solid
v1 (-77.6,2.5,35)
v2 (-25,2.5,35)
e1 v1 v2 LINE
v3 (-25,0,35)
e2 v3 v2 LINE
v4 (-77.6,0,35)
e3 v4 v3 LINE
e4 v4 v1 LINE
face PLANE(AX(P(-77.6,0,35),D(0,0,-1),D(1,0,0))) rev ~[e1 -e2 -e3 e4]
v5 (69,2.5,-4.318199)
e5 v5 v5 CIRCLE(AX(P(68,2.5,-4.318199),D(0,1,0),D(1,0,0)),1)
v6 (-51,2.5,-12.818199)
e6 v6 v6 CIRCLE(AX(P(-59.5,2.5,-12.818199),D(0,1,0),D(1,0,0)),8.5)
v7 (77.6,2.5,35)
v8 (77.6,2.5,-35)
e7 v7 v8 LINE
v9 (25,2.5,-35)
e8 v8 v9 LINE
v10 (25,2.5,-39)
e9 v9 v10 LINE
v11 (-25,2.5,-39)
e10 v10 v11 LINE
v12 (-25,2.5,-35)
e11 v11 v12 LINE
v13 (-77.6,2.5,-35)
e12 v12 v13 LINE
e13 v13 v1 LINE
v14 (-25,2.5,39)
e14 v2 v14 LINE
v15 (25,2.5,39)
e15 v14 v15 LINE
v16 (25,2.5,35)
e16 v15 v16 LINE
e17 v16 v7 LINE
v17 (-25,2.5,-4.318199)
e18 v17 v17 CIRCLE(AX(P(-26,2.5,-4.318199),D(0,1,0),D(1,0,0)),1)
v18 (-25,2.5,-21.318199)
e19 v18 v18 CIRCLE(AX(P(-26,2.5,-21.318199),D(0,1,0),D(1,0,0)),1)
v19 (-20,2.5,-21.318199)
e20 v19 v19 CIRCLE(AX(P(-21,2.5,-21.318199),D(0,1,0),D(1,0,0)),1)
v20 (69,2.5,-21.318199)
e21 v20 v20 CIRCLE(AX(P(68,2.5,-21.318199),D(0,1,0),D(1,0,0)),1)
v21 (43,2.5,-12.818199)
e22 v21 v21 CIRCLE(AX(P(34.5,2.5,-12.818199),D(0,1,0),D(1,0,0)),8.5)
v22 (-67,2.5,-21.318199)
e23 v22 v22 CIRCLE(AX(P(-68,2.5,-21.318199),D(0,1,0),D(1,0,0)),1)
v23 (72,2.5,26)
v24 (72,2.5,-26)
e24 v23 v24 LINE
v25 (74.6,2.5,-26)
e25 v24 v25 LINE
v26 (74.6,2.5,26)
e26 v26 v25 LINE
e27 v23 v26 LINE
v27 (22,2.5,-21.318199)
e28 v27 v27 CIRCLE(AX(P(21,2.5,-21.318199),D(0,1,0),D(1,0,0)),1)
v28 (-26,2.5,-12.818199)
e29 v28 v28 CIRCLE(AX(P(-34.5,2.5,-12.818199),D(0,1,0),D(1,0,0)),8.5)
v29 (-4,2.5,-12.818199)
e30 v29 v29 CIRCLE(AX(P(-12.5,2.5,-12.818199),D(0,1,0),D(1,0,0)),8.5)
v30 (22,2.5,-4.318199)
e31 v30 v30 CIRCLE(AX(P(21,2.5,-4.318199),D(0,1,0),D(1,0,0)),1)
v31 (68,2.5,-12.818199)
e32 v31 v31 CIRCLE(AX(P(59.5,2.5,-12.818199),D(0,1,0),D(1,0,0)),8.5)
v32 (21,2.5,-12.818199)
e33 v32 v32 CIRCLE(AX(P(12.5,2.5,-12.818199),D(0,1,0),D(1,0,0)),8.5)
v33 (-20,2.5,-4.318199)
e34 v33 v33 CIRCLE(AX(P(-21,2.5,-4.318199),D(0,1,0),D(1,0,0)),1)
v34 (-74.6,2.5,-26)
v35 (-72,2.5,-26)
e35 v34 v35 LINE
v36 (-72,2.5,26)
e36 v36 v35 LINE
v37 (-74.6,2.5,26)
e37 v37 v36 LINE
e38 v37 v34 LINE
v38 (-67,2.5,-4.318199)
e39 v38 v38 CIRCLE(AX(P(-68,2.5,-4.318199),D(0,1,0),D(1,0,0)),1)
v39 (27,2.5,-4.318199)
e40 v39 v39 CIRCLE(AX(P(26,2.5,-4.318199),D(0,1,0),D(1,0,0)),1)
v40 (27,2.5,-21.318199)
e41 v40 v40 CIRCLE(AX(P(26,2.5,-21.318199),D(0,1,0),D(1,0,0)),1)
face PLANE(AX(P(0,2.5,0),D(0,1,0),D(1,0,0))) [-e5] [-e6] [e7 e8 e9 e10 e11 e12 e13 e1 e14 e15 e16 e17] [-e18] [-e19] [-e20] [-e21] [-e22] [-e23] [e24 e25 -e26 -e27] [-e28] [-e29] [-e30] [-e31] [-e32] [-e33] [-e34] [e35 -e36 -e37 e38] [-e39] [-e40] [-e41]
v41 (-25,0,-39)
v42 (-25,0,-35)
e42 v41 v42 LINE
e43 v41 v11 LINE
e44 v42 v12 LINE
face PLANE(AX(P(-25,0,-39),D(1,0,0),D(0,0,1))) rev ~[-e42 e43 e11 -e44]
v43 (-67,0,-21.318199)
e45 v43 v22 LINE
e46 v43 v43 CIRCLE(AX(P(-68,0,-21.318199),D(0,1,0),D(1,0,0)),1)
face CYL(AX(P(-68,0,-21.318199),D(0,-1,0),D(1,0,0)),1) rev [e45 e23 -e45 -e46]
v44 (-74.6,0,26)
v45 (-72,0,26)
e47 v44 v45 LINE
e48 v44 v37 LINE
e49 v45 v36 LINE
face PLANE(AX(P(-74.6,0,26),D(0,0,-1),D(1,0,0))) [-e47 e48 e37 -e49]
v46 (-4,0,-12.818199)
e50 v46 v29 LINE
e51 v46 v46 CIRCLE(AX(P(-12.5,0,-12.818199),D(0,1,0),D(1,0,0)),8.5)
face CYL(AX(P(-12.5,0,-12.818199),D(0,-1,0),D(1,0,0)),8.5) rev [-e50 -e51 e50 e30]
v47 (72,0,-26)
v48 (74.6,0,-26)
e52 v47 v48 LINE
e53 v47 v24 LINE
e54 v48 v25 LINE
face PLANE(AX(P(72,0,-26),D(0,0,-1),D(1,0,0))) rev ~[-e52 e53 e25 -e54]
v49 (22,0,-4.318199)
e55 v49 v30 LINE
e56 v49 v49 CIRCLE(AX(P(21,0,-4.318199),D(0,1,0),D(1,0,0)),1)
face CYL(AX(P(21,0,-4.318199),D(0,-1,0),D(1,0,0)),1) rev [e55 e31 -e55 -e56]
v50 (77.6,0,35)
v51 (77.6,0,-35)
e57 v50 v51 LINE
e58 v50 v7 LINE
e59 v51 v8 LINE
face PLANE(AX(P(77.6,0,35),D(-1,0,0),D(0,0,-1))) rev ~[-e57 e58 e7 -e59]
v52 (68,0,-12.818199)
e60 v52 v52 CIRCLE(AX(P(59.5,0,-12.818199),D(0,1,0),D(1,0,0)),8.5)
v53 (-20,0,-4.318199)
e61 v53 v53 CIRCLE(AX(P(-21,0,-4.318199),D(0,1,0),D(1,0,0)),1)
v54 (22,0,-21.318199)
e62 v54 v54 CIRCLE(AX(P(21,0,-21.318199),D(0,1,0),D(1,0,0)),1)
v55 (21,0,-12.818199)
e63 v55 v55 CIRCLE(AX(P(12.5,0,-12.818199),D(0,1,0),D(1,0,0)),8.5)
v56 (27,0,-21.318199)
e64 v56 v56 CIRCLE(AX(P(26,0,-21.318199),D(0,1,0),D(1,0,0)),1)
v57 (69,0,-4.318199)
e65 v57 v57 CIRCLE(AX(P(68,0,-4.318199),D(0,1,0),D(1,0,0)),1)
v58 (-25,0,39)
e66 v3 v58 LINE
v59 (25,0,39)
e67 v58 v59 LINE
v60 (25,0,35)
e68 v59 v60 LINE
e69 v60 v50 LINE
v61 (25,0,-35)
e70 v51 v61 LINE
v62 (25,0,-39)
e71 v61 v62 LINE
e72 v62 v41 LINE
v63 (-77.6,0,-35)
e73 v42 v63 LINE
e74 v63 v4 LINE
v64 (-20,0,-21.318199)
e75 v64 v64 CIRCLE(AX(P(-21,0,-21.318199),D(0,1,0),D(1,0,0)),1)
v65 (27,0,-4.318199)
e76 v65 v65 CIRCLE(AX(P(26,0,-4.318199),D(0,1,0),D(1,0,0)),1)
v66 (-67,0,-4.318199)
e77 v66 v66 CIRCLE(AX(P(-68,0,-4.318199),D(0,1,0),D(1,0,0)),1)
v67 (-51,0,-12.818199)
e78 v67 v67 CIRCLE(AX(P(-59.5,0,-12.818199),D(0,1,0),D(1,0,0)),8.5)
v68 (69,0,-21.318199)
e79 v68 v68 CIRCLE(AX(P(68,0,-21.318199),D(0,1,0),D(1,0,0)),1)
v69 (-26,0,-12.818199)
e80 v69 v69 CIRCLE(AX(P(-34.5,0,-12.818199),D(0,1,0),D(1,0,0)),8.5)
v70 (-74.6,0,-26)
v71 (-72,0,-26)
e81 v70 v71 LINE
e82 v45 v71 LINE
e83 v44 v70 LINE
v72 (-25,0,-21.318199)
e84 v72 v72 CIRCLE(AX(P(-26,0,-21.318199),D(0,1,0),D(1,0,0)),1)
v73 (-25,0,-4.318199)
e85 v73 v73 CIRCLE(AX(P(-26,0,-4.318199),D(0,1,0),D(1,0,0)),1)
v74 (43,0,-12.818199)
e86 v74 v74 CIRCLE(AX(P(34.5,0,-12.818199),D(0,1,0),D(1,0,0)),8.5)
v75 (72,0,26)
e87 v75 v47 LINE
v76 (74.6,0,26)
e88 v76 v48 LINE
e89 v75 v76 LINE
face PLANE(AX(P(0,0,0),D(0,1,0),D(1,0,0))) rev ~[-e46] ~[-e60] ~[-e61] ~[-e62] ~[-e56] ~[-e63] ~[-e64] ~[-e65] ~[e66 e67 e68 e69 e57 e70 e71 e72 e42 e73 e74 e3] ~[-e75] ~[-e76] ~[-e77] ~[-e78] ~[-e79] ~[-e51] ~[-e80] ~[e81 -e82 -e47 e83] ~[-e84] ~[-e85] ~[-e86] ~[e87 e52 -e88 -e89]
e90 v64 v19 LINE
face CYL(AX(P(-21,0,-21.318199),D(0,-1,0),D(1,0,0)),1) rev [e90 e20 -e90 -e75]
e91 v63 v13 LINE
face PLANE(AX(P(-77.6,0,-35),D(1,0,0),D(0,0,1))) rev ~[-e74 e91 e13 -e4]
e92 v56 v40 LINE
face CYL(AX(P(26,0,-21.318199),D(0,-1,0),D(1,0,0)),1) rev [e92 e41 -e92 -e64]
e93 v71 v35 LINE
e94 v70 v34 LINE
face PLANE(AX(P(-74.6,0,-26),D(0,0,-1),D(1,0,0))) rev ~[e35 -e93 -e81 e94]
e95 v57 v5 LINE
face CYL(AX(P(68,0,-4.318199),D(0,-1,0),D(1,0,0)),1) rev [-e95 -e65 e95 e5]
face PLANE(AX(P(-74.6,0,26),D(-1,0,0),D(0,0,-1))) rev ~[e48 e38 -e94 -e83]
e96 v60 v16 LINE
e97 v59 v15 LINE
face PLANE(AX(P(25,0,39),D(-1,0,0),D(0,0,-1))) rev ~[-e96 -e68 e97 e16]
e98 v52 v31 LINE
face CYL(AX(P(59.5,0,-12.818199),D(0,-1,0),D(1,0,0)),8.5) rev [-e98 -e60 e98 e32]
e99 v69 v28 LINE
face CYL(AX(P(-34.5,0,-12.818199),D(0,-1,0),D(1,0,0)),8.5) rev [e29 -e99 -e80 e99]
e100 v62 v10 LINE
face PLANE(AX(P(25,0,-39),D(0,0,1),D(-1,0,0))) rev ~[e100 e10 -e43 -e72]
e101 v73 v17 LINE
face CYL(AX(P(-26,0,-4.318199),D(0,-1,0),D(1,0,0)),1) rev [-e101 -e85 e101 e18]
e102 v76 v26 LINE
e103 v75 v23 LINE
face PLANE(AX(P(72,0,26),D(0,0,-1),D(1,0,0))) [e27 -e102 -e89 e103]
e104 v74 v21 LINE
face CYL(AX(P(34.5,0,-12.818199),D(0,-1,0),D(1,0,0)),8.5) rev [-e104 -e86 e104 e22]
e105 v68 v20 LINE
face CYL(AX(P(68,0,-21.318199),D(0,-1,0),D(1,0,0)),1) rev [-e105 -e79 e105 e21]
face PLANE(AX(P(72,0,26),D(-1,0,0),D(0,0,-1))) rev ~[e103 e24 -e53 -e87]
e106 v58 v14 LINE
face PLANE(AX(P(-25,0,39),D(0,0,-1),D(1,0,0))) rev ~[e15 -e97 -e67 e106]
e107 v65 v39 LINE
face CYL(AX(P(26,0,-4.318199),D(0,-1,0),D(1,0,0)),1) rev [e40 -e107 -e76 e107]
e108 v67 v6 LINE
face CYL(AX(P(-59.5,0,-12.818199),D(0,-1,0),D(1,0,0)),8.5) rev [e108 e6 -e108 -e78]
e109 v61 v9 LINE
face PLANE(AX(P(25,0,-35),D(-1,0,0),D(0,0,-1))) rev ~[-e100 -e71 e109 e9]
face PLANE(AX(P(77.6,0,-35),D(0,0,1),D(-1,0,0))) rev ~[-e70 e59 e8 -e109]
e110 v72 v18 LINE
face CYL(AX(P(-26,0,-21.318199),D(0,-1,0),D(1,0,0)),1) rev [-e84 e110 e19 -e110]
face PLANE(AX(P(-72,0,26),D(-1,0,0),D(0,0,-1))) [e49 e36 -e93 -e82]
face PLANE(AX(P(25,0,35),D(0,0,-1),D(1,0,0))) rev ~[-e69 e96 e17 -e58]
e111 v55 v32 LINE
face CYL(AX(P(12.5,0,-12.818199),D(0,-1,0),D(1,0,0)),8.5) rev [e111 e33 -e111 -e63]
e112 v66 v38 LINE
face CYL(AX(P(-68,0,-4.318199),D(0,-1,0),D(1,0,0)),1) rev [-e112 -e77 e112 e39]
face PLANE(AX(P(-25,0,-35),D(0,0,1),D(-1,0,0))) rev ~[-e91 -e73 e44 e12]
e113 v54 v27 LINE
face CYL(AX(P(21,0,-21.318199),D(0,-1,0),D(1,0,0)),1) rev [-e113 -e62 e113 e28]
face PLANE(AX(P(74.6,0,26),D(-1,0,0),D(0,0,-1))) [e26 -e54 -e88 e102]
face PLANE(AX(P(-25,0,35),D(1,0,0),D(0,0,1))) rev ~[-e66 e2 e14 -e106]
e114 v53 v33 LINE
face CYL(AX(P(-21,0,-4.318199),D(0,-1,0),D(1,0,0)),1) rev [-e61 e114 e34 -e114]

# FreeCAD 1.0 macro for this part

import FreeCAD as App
import Part
import Sketcher
Q = App.Units.Quantity


def add_polygon(sketch, points):
    """Adds a closed chain of lines whose ends are joined by coincident constraints."""
    first, n = sketch.GeometryCount, len(points)
    for a, b in zip(points, points[1:] + points[:1]):
        sketch.addGeometry(Part.LineSegment(App.Vector(*a, 0), App.Vector(*b, 0)), False)
    for i in range(n):
        sketch.addConstraint(Sketcher.Constraint("Coincident", first + i, 2, first + (i + 1) % n, 1))

doc = App.newDocument("Part")
body = doc.addObject("PartDesign::Body", "Body")

# Sketch on XZ plane
sketch1 = body.newObject("Sketcher::SketchObject", "Sketch")
sketch1.AttachmentSupport = (doc.getObject("XZ_Plane"), [""])
sketch1.MapMode = "FlatFace"
add_polygon(sketch1, [(-25, -35), (-77.6, -35), (-77.6, 35), (-25, 35), (-25, 39), (25, 39), (25, 35), (77.6, 35), (77.6, -35), (25, -35), (25, -39), (-25, -39)])  # lines 0-11
add_polygon(sketch1, [(-72, 26), (-74.6, 26), (-74.6, -26), (-72, -26)])  # lines 12-15
sketch1.addGeometry(Part.Circle(App.Vector(-68, -4.3, 0), App.Vector(0, 0, 1), 1), False)  # 16
sketch1.addGeometry(Part.Circle(App.Vector(-59.5, -12.8, 0), App.Vector(0, 0, 1), 8.5), False)  # 17
sketch1.addGeometry(Part.Circle(App.Vector(-26, -4.3, 0), App.Vector(0, 0, 1), 1), False)  # 18
sketch1.addGeometry(Part.Circle(App.Vector(-21, -4.3, 0), App.Vector(0, 0, 1), 1), False)  # 19
sketch1.addGeometry(Part.Circle(App.Vector(-34.5, -12.8, 0), App.Vector(0, 0, 1), 8.5), False)  # 20
sketch1.addGeometry(Part.Circle(App.Vector(-12.5, -12.8, 0), App.Vector(0, 0, 1), 8.5), False)  # 21
sketch1.addGeometry(Part.Circle(App.Vector(-68, -21.3, 0), App.Vector(0, 0, 1), 1), False)  # 22
sketch1.addGeometry(Part.Circle(App.Vector(-26, -21.3, 0), App.Vector(0, 0, 1), 1), False)  # 23
sketch1.addGeometry(Part.Circle(App.Vector(-21, -21.3, 0), App.Vector(0, 0, 1), 1), False)  # 24
sketch1.addGeometry(Part.Circle(App.Vector(21, -4.3, 0), App.Vector(0, 0, 1), 1), False)  # 25
sketch1.addGeometry(Part.Circle(App.Vector(26, -4.3, 0), App.Vector(0, 0, 1), 1), False)  # 26
sketch1.addGeometry(Part.Circle(App.Vector(12.5, -12.8, 0), App.Vector(0, 0, 1), 8.5), False)  # 27
sketch1.addGeometry(Part.Circle(App.Vector(34.5, -12.8, 0), App.Vector(0, 0, 1), 8.5), False)  # 28
add_polygon(sketch1, [(74.6, 26), (72, 26), (72, -26), (74.6, -26)])  # lines 29-32
sketch1.addGeometry(Part.Circle(App.Vector(68, -4.3, 0), App.Vector(0, 0, 1), 1), False)  # 33
sketch1.addGeometry(Part.Circle(App.Vector(59.5, -12.8, 0), App.Vector(0, 0, 1), 8.5), False)  # 34
sketch1.addGeometry(Part.Circle(App.Vector(21, -21.3, 0), App.Vector(0, 0, 1), 1), False)  # 35
sketch1.addGeometry(Part.Circle(App.Vector(26, -21.3, 0), App.Vector(0, 0, 1), 1), False)  # 36
sketch1.addGeometry(Part.Circle(App.Vector(68, -21.3, 0), App.Vector(0, 0, 1), 1), False)  # 37
sketch1.addConstraint(Sketcher.Constraint("Horizontal", 0))
sketch1.addConstraint(Sketcher.Constraint("Vertical", 1))
sketch1.addConstraint(Sketcher.Constraint("Horizontal", 2))
sketch1.addConstraint(Sketcher.Constraint("Vertical", 3))
sketch1.addConstraint(Sketcher.Constraint("Horizontal", 4))
sketch1.addConstraint(Sketcher.Constraint("Vertical", 5))
sketch1.addConstraint(Sketcher.Constraint("Horizontal", 6))
sketch1.addConstraint(Sketcher.Constraint("Vertical", 7))
sketch1.addConstraint(Sketcher.Constraint("Horizontal", 8))
sketch1.addConstraint(Sketcher.Constraint("Vertical", 9))
sketch1.addConstraint(Sketcher.Constraint("Horizontal", 10))
sketch1.addConstraint(Sketcher.Constraint("Vertical", 11))
sketch1.addConstraint(Sketcher.Constraint("Horizontal", 12))
sketch1.addConstraint(Sketcher.Constraint("Vertical", 13))
sketch1.addConstraint(Sketcher.Constraint("Horizontal", 14))
sketch1.addConstraint(Sketcher.Constraint("Vertical", 15))
sketch1.addConstraint(Sketcher.Constraint("Horizontal", 29))
sketch1.addConstraint(Sketcher.Constraint("Vertical", 30))
sketch1.addConstraint(Sketcher.Constraint("Horizontal", 31))
sketch1.addConstraint(Sketcher.Constraint("Vertical", 32))
sketch1.addConstraint(Sketcher.Constraint("Equal", 16, 18))
sketch1.addConstraint(Sketcher.Constraint("Equal", 18, 19))
sketch1.addConstraint(Sketcher.Constraint("Equal", 17, 20))
sketch1.addConstraint(Sketcher.Constraint("Equal", 20, 21))
sketch1.addConstraint(Sketcher.Constraint("Equal", 19, 22))
sketch1.addConstraint(Sketcher.Constraint("Equal", 22, 23))
sketch1.addConstraint(Sketcher.Constraint("Equal", 23, 24))
sketch1.addConstraint(Sketcher.Constraint("Equal", 24, 25))
sketch1.addConstraint(Sketcher.Constraint("Equal", 25, 26))
sketch1.addConstraint(Sketcher.Constraint("Equal", 21, 27))
sketch1.addConstraint(Sketcher.Constraint("Equal", 27, 28))
sketch1.addConstraint(Sketcher.Constraint("Equal", 26, 33))
sketch1.addConstraint(Sketcher.Constraint("Equal", 28, 34))
sketch1.addConstraint(Sketcher.Constraint("Equal", 33, 35))
sketch1.addConstraint(Sketcher.Constraint("Equal", 35, 36))
sketch1.addConstraint(Sketcher.Constraint("Equal", 36, 37))
sketch1.addConstraint(Sketcher.Constraint("Symmetric", 0, 2, 6, 2, -1, 1))
sketch1.addConstraint(Sketcher.Constraint("Symmetric", 2, 2, 8, 2, -1, 1))
sketch1.addConstraint(Sketcher.Constraint("Symmetric", 4, 2, 10, 2, -1, 1))
sketch1.addConstraint(Sketcher.Constraint("Symmetric", 14, 2, 29, 2, -1, 1))
sketch1.addConstraint(Sketcher.Constraint("Symmetric", 12, 2, 31, 2, -1, 1))
sketch1.addConstraint(Sketcher.Constraint("Symmetric", 19, 3, 25, 3, -2))
sketch1.addConstraint(Sketcher.Constraint("Symmetric", 18, 3, 26, 3, -2))
sketch1.addConstraint(Sketcher.Constraint("Symmetric", 21, 3, 27, 3, -2))
sketch1.addConstraint(Sketcher.Constraint("Symmetric", 20, 3, 28, 3, -2))
sketch1.addConstraint(Sketcher.Constraint("Symmetric", 16, 3, 33, 3, -2))
sketch1.addConstraint(Sketcher.Constraint("Symmetric", 17, 3, 34, 3, -2))
sketch1.addConstraint(Sketcher.Constraint("Symmetric", 24, 3, 35, 3, -2))
sketch1.addConstraint(Sketcher.Constraint("Symmetric", 23, 3, 36, 3, -2))
sketch1.addConstraint(Sketcher.Constraint("Symmetric", 22, 3, 37, 3, -2))
sketch1.addConstraint(Sketcher.Constraint("Symmetric", 2, 2, 5, 2, -2))
sketch1.addConstraint(Sketcher.Constraint("Horizontal", 16, 3, 18, 3))
sketch1.addConstraint(Sketcher.Constraint("Horizontal", 18, 3, 19, 3))
sketch1.addConstraint(Sketcher.Constraint("Horizontal", 17, 3, 20, 3))
sketch1.addConstraint(Sketcher.Constraint("Horizontal", 20, 3, 21, 3))
sketch1.addConstraint(Sketcher.Constraint("Horizontal", 22, 3, 23, 3))
sketch1.addConstraint(Sketcher.Constraint("Horizontal", 23, 3, 24, 3))
sketch1.addConstraint(Sketcher.Constraint("Horizontal", 15, 2, 29, 2))
sketch1.addConstraint(Sketcher.Constraint("Vertical", 16, 3, 22, 3))
sketch1.addConstraint(Sketcher.Constraint("Vertical", 18, 3, 23, 3))
sketch1.addConstraint(Sketcher.Constraint("Vertical", 19, 3, 24, 3))
sketch1.addConstraint(Sketcher.Constraint("Diameter", 16, Q("2 mm")))
sketch1.addConstraint(Sketcher.Constraint("Diameter", 17, Q("17 mm")))
sketch1.addConstraint(Sketcher.Constraint("DistanceX", 4, 1, 4, 2, Q("50 mm")))
sketch1.addConstraint(Sketcher.Constraint("DistanceY", 1, 1, 1, 2, Q("70 mm")))
sketch1.addConstraint(Sketcher.Constraint("DistanceY", 3, 1, 3, 2, Q("4 mm")))
sketch1.addConstraint(Sketcher.Constraint("DistanceY", 13, 2, 13, 1, Q("52 mm")))
sketch1.addConstraint(Sketcher.Constraint("DistanceX", 0, 2, 0, 1, Q("52.6 mm")))
sketch1.addConstraint(Sketcher.Constraint("DistanceX", 12, 2, 12, 1, Q("2.6 mm")))
sketch1.addConstraint(Sketcher.Constraint("DistanceX", 16, 3, -1, 1, Q("68 mm")))
sketch1.addConstraint(Sketcher.Constraint("DistanceX", 18, 3, -1, 1, Q("26 mm")))
sketch1.addConstraint(Sketcher.Constraint("DistanceX", 19, 3, -1, 1, Q("21 mm")))
sketch1.addConstraint(Sketcher.Constraint("DistanceX", 14, 2, -1, 1, Q("72 mm")))
sketch1.addConstraint(Sketcher.Constraint("DistanceX", 17, 3, 20, 3, Q("25 mm")))
sketch1.addConstraint(Sketcher.Constraint("DistanceX", 20, 3, 21, 3, Q("22 mm")))
sketch1.addConstraint(Sketcher.Constraint("DistanceY", 22, 3, 16, 3, Q("17 mm")))
sketch1.addConstraint(Sketcher.Constraint("DistanceX", 21, 3, 27, 3, Q("25 mm")))
sketch1.addConstraint(Sketcher.Constraint("DistanceY", 17, 3, 16, 3, Q("8.5 mm")))
sketch1.addConstraint(Sketcher.Constraint("DistanceY", 16, 3, -1, 1, Q("4.318199 mm")))
pad1 = body.newObject("PartDesign::Pad", "Pad")
pad1.Profile = sketch1
pad1.Length = 2.5
pad1.Reversed = True

doc.recompute()
